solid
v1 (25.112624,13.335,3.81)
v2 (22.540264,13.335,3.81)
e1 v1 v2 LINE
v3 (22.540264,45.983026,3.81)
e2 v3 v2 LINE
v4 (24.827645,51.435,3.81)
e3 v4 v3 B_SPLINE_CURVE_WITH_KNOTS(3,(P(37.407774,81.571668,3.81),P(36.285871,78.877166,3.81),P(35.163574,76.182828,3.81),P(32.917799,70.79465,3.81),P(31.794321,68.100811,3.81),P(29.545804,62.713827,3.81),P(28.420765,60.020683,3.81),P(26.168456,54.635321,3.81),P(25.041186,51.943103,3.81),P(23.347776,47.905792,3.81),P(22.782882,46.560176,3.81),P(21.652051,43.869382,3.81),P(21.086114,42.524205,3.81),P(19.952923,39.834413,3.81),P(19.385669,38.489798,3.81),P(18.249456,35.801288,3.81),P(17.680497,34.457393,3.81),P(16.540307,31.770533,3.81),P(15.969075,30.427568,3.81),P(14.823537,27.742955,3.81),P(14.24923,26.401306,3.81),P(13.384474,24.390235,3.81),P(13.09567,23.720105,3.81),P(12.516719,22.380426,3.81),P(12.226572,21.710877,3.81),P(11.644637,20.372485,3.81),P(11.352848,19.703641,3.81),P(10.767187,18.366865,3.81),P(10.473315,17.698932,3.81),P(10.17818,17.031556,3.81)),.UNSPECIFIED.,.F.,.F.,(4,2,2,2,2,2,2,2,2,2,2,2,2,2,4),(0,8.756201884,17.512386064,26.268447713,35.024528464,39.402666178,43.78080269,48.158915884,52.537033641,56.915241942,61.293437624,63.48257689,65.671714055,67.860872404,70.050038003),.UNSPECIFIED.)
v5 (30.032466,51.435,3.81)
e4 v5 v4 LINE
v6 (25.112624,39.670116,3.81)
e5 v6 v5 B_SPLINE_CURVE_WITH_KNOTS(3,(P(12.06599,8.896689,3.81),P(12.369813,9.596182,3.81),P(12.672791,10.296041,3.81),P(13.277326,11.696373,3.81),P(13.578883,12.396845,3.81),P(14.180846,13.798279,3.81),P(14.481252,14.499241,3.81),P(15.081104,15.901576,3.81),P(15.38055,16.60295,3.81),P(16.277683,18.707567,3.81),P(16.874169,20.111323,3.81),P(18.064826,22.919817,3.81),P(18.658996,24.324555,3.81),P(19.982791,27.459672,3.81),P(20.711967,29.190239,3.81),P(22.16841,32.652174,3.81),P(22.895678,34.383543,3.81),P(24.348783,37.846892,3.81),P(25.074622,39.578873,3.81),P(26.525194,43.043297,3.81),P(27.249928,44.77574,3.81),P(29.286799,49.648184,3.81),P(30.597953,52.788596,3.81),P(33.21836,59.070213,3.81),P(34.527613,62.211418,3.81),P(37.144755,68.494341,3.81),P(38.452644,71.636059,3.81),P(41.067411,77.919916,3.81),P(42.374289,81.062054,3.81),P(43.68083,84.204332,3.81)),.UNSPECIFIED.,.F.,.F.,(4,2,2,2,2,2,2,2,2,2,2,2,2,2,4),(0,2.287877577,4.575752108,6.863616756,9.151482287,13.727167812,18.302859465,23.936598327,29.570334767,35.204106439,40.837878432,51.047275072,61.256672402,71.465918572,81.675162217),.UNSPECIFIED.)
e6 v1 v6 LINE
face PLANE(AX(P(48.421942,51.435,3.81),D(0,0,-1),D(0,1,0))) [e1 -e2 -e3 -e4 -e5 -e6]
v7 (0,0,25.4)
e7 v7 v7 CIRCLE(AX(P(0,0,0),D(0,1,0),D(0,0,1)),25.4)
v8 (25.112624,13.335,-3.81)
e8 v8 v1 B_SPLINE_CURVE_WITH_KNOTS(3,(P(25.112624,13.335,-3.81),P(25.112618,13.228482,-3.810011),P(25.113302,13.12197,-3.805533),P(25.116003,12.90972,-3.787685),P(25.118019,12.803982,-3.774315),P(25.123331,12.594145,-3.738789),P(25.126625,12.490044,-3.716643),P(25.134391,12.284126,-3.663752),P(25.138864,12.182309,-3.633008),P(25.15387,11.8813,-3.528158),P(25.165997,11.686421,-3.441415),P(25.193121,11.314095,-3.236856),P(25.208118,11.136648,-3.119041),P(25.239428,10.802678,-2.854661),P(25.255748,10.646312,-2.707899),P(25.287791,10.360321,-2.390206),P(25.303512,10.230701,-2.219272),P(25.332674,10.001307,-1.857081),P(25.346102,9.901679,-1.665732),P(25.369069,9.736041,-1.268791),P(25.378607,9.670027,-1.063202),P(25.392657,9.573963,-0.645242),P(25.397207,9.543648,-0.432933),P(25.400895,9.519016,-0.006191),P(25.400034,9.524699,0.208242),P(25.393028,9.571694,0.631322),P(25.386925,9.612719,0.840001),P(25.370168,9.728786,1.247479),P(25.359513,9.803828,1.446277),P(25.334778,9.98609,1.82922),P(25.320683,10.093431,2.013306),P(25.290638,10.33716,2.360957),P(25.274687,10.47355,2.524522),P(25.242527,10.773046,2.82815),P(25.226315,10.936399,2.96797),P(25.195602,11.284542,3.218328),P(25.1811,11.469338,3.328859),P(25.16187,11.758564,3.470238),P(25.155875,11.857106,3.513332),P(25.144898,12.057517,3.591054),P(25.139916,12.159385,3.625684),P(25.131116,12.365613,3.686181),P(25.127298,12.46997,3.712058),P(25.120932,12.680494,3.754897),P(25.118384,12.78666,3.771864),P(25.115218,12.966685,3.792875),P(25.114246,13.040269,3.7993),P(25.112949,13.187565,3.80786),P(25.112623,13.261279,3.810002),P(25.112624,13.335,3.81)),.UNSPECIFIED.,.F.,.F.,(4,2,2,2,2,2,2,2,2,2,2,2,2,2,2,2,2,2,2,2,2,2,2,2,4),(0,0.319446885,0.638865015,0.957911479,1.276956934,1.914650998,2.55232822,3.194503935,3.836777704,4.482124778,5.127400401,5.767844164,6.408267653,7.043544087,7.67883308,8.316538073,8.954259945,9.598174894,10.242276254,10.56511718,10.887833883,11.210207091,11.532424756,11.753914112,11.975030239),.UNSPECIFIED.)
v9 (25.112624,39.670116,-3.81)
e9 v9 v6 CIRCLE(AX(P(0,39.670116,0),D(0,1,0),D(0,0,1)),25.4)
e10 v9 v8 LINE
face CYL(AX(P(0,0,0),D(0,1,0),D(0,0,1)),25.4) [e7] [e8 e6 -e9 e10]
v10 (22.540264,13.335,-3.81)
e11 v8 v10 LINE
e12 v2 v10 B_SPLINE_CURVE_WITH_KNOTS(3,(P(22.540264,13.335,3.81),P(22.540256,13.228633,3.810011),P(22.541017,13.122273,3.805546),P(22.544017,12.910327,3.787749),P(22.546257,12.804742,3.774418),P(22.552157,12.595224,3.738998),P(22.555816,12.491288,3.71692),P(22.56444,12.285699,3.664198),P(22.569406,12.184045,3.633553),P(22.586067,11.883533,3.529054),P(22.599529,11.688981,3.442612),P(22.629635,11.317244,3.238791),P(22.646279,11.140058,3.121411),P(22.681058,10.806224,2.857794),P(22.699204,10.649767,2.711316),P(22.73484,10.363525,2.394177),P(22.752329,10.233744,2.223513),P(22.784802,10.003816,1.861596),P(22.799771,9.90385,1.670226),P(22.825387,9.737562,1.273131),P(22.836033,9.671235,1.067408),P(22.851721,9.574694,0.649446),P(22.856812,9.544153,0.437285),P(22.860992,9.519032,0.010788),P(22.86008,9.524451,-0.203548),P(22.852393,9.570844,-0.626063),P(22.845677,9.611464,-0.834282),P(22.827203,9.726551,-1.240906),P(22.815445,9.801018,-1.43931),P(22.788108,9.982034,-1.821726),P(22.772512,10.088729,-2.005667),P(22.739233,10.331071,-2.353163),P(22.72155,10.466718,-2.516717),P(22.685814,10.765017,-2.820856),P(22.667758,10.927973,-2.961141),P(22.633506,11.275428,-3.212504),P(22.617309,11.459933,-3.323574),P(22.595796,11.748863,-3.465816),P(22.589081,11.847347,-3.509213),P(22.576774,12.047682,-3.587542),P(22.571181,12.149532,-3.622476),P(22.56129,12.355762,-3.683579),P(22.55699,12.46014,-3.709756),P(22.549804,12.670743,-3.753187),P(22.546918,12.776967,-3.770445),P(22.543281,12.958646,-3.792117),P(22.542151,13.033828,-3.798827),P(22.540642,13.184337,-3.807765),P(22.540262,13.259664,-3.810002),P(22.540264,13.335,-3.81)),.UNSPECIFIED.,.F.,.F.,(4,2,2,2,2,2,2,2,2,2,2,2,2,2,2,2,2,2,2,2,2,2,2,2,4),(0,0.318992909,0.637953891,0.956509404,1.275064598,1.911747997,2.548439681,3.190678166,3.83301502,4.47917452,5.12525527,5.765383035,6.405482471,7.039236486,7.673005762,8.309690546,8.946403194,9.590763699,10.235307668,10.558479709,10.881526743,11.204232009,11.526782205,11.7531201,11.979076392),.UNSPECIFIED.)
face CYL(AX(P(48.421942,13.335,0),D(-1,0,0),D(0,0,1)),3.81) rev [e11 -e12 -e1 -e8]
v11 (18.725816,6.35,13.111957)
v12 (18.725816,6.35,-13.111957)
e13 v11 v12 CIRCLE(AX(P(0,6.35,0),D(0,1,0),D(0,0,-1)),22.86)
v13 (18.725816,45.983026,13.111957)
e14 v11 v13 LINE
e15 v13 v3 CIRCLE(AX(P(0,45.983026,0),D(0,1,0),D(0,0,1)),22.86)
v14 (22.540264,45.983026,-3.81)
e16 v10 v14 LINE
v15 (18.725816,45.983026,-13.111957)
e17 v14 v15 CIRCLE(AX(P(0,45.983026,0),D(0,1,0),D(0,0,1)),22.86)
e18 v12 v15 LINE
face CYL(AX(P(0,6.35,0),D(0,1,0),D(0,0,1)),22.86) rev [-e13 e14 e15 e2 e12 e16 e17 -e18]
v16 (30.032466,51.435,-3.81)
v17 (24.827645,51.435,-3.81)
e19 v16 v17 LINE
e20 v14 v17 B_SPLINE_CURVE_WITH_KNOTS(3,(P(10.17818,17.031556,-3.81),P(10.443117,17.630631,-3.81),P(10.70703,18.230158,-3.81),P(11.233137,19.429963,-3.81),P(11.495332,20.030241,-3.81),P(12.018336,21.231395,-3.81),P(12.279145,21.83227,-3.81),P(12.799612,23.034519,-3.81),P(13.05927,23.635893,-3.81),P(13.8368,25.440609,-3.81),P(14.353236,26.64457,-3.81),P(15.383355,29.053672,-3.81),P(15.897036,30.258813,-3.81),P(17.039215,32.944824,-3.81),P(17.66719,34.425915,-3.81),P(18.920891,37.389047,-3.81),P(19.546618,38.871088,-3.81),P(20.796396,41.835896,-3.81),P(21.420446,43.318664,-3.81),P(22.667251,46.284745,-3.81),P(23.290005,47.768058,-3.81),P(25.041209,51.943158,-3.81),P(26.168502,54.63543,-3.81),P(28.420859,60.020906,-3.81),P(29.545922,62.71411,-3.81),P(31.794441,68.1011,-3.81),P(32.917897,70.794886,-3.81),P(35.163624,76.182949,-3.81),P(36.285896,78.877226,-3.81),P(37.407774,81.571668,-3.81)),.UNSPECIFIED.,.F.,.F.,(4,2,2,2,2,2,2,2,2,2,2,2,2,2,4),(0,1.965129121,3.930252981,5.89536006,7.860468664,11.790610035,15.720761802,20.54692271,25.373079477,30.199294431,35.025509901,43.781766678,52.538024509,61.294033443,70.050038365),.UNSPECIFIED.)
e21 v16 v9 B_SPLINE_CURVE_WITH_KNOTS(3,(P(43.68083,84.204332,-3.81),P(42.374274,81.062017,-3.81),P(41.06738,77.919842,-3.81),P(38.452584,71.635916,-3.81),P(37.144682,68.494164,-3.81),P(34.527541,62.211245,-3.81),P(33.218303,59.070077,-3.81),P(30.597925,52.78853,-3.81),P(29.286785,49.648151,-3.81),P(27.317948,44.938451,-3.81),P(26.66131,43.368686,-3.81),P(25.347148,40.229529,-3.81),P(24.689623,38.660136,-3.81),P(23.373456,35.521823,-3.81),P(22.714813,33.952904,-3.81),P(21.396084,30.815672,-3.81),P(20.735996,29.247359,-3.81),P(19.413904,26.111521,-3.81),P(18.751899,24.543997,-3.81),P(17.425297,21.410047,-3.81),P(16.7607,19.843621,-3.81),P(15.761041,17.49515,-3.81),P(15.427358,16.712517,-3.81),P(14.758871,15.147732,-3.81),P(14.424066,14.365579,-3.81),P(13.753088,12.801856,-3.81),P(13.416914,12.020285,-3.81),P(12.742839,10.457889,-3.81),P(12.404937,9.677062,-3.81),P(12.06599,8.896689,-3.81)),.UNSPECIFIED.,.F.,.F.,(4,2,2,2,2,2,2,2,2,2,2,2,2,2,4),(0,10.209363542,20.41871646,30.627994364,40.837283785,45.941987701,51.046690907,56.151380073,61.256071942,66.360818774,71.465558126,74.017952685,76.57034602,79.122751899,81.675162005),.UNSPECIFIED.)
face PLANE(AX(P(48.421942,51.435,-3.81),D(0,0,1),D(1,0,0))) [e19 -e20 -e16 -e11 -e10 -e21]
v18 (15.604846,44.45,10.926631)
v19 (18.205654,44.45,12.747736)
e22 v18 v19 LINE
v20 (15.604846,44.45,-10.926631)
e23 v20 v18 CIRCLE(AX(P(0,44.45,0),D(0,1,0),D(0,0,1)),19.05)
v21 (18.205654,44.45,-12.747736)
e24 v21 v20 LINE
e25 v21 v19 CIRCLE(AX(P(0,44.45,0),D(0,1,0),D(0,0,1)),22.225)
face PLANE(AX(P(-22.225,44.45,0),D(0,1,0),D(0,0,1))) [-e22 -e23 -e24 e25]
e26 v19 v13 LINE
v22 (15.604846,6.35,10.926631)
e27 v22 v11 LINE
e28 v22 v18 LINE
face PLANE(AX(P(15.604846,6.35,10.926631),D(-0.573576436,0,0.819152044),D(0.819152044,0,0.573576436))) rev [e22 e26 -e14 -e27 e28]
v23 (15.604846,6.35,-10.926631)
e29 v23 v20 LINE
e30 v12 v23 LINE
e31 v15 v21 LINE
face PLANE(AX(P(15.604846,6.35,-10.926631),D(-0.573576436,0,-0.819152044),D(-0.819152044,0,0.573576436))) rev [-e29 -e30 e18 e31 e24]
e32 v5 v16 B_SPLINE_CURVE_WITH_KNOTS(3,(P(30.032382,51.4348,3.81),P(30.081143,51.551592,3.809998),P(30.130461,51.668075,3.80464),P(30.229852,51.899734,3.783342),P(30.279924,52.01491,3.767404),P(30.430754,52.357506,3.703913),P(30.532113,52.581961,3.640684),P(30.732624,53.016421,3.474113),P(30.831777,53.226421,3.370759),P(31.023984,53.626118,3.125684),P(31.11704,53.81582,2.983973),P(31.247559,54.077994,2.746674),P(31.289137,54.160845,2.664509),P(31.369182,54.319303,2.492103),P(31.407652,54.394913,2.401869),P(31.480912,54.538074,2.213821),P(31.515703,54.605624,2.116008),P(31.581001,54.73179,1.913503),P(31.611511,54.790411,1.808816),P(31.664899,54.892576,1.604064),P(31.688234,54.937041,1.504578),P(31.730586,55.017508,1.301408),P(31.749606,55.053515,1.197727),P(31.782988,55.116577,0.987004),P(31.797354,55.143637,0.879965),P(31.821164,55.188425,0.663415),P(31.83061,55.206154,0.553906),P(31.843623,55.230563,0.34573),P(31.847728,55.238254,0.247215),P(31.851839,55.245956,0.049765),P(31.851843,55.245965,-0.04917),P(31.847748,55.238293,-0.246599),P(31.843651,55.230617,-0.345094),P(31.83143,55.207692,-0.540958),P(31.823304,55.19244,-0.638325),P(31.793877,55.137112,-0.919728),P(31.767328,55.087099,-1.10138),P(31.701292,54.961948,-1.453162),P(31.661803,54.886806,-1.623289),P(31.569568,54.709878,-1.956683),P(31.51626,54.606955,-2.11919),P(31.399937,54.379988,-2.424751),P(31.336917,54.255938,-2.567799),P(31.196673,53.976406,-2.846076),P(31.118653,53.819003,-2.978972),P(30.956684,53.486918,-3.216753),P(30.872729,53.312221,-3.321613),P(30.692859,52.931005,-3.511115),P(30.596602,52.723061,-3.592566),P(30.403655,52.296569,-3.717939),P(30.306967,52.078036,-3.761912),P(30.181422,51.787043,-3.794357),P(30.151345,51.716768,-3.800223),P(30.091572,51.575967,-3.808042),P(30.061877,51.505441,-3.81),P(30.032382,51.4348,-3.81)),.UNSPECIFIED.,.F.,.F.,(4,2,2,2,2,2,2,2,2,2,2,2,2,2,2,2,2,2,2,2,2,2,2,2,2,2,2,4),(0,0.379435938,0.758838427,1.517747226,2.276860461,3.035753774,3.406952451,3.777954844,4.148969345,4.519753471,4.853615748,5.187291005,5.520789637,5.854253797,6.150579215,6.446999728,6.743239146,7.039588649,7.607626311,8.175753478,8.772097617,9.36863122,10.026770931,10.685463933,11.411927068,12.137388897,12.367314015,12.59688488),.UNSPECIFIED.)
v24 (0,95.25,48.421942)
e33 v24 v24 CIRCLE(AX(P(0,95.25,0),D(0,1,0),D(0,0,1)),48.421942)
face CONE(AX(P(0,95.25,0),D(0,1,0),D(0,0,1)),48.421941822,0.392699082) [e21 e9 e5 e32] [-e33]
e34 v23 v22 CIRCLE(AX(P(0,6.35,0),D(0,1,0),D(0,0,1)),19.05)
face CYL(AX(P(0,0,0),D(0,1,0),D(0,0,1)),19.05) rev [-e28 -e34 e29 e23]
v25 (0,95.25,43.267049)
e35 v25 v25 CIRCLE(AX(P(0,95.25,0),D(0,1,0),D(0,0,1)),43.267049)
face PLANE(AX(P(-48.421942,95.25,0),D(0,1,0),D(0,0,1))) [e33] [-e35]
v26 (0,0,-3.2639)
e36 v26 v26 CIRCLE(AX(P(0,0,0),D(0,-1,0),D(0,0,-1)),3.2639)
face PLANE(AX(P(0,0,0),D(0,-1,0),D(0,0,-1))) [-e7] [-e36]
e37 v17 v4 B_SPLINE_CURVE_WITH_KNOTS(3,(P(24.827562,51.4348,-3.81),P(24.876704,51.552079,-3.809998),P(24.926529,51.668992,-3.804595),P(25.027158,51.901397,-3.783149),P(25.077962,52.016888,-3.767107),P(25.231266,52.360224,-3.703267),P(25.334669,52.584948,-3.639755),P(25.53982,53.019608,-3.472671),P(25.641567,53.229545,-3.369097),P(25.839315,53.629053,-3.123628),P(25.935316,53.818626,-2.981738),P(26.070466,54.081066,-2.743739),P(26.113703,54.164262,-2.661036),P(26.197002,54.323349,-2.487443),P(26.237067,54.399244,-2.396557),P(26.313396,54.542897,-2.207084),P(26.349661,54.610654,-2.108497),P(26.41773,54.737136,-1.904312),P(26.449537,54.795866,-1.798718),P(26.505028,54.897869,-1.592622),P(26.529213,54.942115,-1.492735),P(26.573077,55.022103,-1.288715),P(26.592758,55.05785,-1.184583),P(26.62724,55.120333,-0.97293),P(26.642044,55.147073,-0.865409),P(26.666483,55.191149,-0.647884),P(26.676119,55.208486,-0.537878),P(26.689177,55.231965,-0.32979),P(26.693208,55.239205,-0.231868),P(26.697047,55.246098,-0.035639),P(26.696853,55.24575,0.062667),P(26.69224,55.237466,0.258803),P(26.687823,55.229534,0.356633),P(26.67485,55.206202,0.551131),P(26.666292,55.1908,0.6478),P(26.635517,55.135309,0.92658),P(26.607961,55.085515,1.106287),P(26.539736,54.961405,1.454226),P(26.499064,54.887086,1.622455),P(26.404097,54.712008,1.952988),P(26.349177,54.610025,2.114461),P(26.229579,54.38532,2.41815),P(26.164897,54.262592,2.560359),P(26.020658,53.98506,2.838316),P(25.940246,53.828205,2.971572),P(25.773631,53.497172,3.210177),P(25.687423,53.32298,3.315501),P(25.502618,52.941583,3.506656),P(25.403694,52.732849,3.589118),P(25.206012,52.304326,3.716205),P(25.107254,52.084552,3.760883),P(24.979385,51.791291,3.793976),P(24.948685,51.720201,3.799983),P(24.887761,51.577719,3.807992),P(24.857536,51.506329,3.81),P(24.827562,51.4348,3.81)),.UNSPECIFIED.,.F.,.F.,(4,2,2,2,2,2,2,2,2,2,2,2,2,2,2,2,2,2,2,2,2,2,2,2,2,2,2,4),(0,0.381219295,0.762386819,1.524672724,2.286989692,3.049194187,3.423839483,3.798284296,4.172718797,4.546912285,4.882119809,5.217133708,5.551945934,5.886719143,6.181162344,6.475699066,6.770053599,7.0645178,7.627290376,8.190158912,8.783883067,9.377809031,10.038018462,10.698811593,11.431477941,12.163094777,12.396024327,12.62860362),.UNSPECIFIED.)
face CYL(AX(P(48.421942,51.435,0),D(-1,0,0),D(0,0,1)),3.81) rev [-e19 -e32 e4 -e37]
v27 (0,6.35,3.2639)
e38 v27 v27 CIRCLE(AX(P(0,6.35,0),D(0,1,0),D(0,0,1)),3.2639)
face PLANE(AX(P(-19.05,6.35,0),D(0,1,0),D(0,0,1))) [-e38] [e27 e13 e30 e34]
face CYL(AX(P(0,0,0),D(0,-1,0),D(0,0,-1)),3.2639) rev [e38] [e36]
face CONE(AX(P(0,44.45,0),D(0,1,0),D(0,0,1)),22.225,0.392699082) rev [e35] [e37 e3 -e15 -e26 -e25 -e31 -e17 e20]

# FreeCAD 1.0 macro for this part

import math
import FreeCAD as App
import Part
import Sketcher
Q = App.Units.Quantity

doc = App.newDocument("Part")
body = doc.addObject("PartDesign::Body", "Body")

# Sketch on XY plane
sketch1 = body.newObject("Sketcher::SketchObject", "Sketch")
sketch1.AttachmentSupport = (doc.getObject("XY_Plane"), [""])
sketch1.MapMode = "FlatFace"
sketch1.addGeometry(Part.LineSegment(App.Vector(-25.4, 0, 0), App.Vector(0, 0, 0)), False)
sketch1.addGeometry(Part.LineSegment(App.Vector(0, 0, 0), App.Vector(0, 6.3, 0)), False)
sketch1.addGeometry(Part.LineSegment(App.Vector(0, 6.3, 0), App.Vector(-19.1, 6.3, 0)), False)
sketch1.addGeometry(Part.LineSegment(App.Vector(-19.1, 6.3, 0), App.Vector(-19.1, 44.5, 0)), False)
sketch1.addGeometry(Part.LineSegment(App.Vector(-19.1, 44.5, 0), App.Vector(-22.2, 44.5, 0)), False)
sketch1.addGeometry(Part.LineSegment(App.Vector(-22.2, 44.5, 0), App.Vector(-43.3, 95.2, 0)), False)
sketch1.addGeometry(Part.LineSegment(App.Vector(-43.3, 95.2, 0), App.Vector(-48.4, 95.2, 0)), False)
sketch1.addGeometry(Part.LineSegment(App.Vector(-48.4, 95.2, 0), App.Vector(-25.4, 39.7, 0)), False)
sketch1.addGeometry(Part.LineSegment(App.Vector(-25.4, 39.7, 0), App.Vector(-25.4, 0, 0)), False)
sketch1.addConstraint(Sketcher.Constraint("Coincident", 0, 2, 1, 1))
sketch1.addConstraint(Sketcher.Constraint("Coincident", 1, 2, 2, 1))
sketch1.addConstraint(Sketcher.Constraint("Coincident", 2, 2, 3, 1))
sketch1.addConstraint(Sketcher.Constraint("Coincident", 3, 2, 4, 1))
sketch1.addConstraint(Sketcher.Constraint("Coincident", 4, 2, 5, 1))
sketch1.addConstraint(Sketcher.Constraint("Coincident", 5, 2, 6, 1))
sketch1.addConstraint(Sketcher.Constraint("Coincident", 6, 2, 7, 1))
sketch1.addConstraint(Sketcher.Constraint("Coincident", 7, 2, 8, 1))
sketch1.addConstraint(Sketcher.Constraint("Coincident", 8, 2, 0, 1))
sketch1.addConstraint(Sketcher.Constraint("Horizontal", 0))
sketch1.addConstraint(Sketcher.Constraint("Vertical", 1))
sketch1.addConstraint(Sketcher.Constraint("Horizontal", 2))
sketch1.addConstraint(Sketcher.Constraint("Vertical", 3))
sketch1.addConstraint(Sketcher.Constraint("Horizontal", 4))
sketch1.addConstraint(Sketcher.Constraint("Horizontal", 6))
sketch1.addConstraint(Sketcher.Constraint("Vertical", 8))
sketch1.addConstraint(Sketcher.Constraint("Coincident", 0, 2, -1, 1))
sketch1.addConstraint(Sketcher.Constraint("Parallel", 5, 7))
sketch1.addConstraint(Sketcher.Constraint("DistanceX", 0, 1, 0, 2, Q("1 in")))
sketch1.addConstraint(Sketcher.Constraint("DistanceY", 3, 1, 3, 2, Q("1.5 in")))
sketch1.addConstraint(Sketcher.Constraint("DistanceY", 4, 2, 5, 2, Q("2 in")))
sketch1.addConstraint(Sketcher.Constraint("DistanceX", 2, 2, 2, 1, Q("0.75 in")))
sketch1.addConstraint(Sketcher.Constraint("DistanceY", 1, 1, 1, 2, Q("0.25 in")))
sketch1.addConstraint(Sketcher.Constraint("Angle", 5, Q("112.5 deg")))
sketch1.addConstraint(Sketcher.Constraint("DistanceX", 4, 2, 4, 1, Q("0.125 in")))
sketch1.addConstraint(Sketcher.Constraint("DistanceX", 6, 2, 6, 1, 5.154893))
revolution = body.newObject("PartDesign::Revolution", "Revolution")
revolution.Profile = sketch1
revolution.ReferenceAxis = (sketch1, ["V_Axis"])
revolution.Angle = 360

# Sketch on YZ plane
sketch2 = body.newObject("Sketcher::SketchObject", "Sketch001")
sketch2.AttachmentSupport = (doc.getObject("YZ_Plane"), [""])
sketch2.MapMode = "FlatFace"
sketch2.addGeometry(Part.LineSegment(App.Vector(51.4, 3.8, 0), App.Vector(13.3, 3.8, 0)), False)
sketch2.addGeometry(Part.ArcOfCircle(Part.Circle(App.Vector(13.3, 0, 0), App.Vector(0, 0, 1), 3.8), math.radians(90), math.radians(270)), False)
sketch2.addGeometry(Part.LineSegment(App.Vector(13.3, -3.8, 0), App.Vector(51.4, -3.8, 0)), False)
sketch2.addGeometry(Part.ArcOfCircle(Part.Circle(App.Vector(51.4, 0, 0), App.Vector(0, 0, 1), 3.8), math.radians(-90), math.radians(90)), False)
sketch2.addConstraint(Sketcher.Constraint("Tangent", 0, 2, 1, 1))
sketch2.addConstraint(Sketcher.Constraint("Tangent", 1, 2, 2, 1))
sketch2.addConstraint(Sketcher.Constraint("Tangent", 2, 2, 3, 1))
sketch2.addConstraint(Sketcher.Constraint("Tangent", 3, 2, 0, 1))
sketch2.addConstraint(Sketcher.Constraint("Horizontal", 0))
sketch2.addConstraint(Sketcher.Constraint("Horizontal", 2))
sketch2.addConstraint(Sketcher.Constraint("PointOnObject", 1, 3, -1))
sketch2.addConstraint(Sketcher.Constraint("Radius", 1, Q("0.15 in")))
sketch2.addConstraint(Sketcher.Constraint("DistanceX", 0, 2, 0, 1, Q("1.5 in")))
sketch2.addConstraint(Sketcher.Constraint("DistanceX", -1, 1, 1, 3, Q("0.525 in")))
pocket1 = body.newObject("PartDesign::Pocket", "Pocket")
pocket1.Profile = sketch2
pocket1.Type = "ThroughAll"
pocket1.Reversed = True

# Sketch on XZ plane
sketch3 = body.newObject("Sketcher::SketchObject", "Sketch002")
sketch3.AttachmentSupport = (doc.getObject("XZ_Plane"), [""])
sketch3.MapMode = "FlatFace"
sketch3.addGeometry(Part.Circle(App.Vector(0, 0, 0), App.Vector(0, 0, 1), 3.3), False)
sketch3.addConstraint(Sketcher.Constraint("Coincident", 0, 3, -1, 1))
sketch3.addConstraint(Sketcher.Constraint("Diameter", 0, Q("0.257 in")))
doc.recompute()
hole = body.newObject("PartDesign::Hole", "Hole")
hole.Profile = sketch3
hole.ThreadType = "None"
hole.Diameter = Q("0.257 in")
hole.DepthType = "ThroughAll"

# Sketch on XZ plane
sketch4 = body.newObject("Sketcher::SketchObject", "Sketch003")
sketch4.AttachmentSupport = (doc.getObject("XZ_Plane"), [""])
sketch4.MapMode = "FlatFace"
sketch4.AttachmentOffset = App.Placement(App.Vector(0, 0, -1.75 * 25.4), App.Rotation())
sketch4.addGeometry(Part.LineSegment(App.Vector(18.7, -13.1, 0), App.Vector(15.6, -10.9, 0)), False)
sketch4.addGeometry(Part.ArcOfCircle(Part.Circle(App.Vector(0, 0, 0), App.Vector(0, 0, 1), 19.1), math.radians(-35), math.radians(35)), False)
sketch4.addGeometry(Part.LineSegment(App.Vector(15.6, 10.9, 0), App.Vector(18.7, 13.1, 0)), False)
sketch4.addGeometry(Part.ArcOfCircle(Part.Circle(App.Vector(0, 0, 0), App.Vector(0, 0, 1), 22.9), math.radians(-35), math.radians(35)), False)
sketch4.addConstraint(Sketcher.Constraint("Coincident", 0, 2, 1, 1))
sketch4.addConstraint(Sketcher.Constraint("Coincident", 1, 2, 2, 1))
sketch4.addConstraint(Sketcher.Constraint("Coincident", 2, 2, 3, 2))
sketch4.addConstraint(Sketcher.Constraint("Coincident", 3, 1, 0, 1))
sketch4.addConstraint(Sketcher.Constraint("Coincident", 1, 3, -1, 1))
sketch4.addConstraint(Sketcher.Constraint("Coincident", 3, 3, -1, 1))
sketch4.addConstraint(Sketcher.Constraint("Vertical", 0, 2, 1, 2))
sketch4.addConstraint(Sketcher.Constraint("Vertical", 2, 2, 3, 1))
sketch4.addConstraint(Sketcher.Constraint("Radius", 3, Q("0.9 in")))
sketch4.addConstraint(Sketcher.Constraint("Radius", 1, Q("0.75 in")))
sketch4.addConstraint(Sketcher.Constraint("Angle", 0, Q("145 deg")))
sketch4.addConstraint(Sketcher.Constraint("DistanceY", 0, 2, -1, 1, 10.926631))
pocket2 = body.newObject("PartDesign::Pocket", "Pocket001")
pocket2.Profile = sketch4
pocket2.Length = Q("3 in")
pocket2.Midplane = True

doc.recompute()
